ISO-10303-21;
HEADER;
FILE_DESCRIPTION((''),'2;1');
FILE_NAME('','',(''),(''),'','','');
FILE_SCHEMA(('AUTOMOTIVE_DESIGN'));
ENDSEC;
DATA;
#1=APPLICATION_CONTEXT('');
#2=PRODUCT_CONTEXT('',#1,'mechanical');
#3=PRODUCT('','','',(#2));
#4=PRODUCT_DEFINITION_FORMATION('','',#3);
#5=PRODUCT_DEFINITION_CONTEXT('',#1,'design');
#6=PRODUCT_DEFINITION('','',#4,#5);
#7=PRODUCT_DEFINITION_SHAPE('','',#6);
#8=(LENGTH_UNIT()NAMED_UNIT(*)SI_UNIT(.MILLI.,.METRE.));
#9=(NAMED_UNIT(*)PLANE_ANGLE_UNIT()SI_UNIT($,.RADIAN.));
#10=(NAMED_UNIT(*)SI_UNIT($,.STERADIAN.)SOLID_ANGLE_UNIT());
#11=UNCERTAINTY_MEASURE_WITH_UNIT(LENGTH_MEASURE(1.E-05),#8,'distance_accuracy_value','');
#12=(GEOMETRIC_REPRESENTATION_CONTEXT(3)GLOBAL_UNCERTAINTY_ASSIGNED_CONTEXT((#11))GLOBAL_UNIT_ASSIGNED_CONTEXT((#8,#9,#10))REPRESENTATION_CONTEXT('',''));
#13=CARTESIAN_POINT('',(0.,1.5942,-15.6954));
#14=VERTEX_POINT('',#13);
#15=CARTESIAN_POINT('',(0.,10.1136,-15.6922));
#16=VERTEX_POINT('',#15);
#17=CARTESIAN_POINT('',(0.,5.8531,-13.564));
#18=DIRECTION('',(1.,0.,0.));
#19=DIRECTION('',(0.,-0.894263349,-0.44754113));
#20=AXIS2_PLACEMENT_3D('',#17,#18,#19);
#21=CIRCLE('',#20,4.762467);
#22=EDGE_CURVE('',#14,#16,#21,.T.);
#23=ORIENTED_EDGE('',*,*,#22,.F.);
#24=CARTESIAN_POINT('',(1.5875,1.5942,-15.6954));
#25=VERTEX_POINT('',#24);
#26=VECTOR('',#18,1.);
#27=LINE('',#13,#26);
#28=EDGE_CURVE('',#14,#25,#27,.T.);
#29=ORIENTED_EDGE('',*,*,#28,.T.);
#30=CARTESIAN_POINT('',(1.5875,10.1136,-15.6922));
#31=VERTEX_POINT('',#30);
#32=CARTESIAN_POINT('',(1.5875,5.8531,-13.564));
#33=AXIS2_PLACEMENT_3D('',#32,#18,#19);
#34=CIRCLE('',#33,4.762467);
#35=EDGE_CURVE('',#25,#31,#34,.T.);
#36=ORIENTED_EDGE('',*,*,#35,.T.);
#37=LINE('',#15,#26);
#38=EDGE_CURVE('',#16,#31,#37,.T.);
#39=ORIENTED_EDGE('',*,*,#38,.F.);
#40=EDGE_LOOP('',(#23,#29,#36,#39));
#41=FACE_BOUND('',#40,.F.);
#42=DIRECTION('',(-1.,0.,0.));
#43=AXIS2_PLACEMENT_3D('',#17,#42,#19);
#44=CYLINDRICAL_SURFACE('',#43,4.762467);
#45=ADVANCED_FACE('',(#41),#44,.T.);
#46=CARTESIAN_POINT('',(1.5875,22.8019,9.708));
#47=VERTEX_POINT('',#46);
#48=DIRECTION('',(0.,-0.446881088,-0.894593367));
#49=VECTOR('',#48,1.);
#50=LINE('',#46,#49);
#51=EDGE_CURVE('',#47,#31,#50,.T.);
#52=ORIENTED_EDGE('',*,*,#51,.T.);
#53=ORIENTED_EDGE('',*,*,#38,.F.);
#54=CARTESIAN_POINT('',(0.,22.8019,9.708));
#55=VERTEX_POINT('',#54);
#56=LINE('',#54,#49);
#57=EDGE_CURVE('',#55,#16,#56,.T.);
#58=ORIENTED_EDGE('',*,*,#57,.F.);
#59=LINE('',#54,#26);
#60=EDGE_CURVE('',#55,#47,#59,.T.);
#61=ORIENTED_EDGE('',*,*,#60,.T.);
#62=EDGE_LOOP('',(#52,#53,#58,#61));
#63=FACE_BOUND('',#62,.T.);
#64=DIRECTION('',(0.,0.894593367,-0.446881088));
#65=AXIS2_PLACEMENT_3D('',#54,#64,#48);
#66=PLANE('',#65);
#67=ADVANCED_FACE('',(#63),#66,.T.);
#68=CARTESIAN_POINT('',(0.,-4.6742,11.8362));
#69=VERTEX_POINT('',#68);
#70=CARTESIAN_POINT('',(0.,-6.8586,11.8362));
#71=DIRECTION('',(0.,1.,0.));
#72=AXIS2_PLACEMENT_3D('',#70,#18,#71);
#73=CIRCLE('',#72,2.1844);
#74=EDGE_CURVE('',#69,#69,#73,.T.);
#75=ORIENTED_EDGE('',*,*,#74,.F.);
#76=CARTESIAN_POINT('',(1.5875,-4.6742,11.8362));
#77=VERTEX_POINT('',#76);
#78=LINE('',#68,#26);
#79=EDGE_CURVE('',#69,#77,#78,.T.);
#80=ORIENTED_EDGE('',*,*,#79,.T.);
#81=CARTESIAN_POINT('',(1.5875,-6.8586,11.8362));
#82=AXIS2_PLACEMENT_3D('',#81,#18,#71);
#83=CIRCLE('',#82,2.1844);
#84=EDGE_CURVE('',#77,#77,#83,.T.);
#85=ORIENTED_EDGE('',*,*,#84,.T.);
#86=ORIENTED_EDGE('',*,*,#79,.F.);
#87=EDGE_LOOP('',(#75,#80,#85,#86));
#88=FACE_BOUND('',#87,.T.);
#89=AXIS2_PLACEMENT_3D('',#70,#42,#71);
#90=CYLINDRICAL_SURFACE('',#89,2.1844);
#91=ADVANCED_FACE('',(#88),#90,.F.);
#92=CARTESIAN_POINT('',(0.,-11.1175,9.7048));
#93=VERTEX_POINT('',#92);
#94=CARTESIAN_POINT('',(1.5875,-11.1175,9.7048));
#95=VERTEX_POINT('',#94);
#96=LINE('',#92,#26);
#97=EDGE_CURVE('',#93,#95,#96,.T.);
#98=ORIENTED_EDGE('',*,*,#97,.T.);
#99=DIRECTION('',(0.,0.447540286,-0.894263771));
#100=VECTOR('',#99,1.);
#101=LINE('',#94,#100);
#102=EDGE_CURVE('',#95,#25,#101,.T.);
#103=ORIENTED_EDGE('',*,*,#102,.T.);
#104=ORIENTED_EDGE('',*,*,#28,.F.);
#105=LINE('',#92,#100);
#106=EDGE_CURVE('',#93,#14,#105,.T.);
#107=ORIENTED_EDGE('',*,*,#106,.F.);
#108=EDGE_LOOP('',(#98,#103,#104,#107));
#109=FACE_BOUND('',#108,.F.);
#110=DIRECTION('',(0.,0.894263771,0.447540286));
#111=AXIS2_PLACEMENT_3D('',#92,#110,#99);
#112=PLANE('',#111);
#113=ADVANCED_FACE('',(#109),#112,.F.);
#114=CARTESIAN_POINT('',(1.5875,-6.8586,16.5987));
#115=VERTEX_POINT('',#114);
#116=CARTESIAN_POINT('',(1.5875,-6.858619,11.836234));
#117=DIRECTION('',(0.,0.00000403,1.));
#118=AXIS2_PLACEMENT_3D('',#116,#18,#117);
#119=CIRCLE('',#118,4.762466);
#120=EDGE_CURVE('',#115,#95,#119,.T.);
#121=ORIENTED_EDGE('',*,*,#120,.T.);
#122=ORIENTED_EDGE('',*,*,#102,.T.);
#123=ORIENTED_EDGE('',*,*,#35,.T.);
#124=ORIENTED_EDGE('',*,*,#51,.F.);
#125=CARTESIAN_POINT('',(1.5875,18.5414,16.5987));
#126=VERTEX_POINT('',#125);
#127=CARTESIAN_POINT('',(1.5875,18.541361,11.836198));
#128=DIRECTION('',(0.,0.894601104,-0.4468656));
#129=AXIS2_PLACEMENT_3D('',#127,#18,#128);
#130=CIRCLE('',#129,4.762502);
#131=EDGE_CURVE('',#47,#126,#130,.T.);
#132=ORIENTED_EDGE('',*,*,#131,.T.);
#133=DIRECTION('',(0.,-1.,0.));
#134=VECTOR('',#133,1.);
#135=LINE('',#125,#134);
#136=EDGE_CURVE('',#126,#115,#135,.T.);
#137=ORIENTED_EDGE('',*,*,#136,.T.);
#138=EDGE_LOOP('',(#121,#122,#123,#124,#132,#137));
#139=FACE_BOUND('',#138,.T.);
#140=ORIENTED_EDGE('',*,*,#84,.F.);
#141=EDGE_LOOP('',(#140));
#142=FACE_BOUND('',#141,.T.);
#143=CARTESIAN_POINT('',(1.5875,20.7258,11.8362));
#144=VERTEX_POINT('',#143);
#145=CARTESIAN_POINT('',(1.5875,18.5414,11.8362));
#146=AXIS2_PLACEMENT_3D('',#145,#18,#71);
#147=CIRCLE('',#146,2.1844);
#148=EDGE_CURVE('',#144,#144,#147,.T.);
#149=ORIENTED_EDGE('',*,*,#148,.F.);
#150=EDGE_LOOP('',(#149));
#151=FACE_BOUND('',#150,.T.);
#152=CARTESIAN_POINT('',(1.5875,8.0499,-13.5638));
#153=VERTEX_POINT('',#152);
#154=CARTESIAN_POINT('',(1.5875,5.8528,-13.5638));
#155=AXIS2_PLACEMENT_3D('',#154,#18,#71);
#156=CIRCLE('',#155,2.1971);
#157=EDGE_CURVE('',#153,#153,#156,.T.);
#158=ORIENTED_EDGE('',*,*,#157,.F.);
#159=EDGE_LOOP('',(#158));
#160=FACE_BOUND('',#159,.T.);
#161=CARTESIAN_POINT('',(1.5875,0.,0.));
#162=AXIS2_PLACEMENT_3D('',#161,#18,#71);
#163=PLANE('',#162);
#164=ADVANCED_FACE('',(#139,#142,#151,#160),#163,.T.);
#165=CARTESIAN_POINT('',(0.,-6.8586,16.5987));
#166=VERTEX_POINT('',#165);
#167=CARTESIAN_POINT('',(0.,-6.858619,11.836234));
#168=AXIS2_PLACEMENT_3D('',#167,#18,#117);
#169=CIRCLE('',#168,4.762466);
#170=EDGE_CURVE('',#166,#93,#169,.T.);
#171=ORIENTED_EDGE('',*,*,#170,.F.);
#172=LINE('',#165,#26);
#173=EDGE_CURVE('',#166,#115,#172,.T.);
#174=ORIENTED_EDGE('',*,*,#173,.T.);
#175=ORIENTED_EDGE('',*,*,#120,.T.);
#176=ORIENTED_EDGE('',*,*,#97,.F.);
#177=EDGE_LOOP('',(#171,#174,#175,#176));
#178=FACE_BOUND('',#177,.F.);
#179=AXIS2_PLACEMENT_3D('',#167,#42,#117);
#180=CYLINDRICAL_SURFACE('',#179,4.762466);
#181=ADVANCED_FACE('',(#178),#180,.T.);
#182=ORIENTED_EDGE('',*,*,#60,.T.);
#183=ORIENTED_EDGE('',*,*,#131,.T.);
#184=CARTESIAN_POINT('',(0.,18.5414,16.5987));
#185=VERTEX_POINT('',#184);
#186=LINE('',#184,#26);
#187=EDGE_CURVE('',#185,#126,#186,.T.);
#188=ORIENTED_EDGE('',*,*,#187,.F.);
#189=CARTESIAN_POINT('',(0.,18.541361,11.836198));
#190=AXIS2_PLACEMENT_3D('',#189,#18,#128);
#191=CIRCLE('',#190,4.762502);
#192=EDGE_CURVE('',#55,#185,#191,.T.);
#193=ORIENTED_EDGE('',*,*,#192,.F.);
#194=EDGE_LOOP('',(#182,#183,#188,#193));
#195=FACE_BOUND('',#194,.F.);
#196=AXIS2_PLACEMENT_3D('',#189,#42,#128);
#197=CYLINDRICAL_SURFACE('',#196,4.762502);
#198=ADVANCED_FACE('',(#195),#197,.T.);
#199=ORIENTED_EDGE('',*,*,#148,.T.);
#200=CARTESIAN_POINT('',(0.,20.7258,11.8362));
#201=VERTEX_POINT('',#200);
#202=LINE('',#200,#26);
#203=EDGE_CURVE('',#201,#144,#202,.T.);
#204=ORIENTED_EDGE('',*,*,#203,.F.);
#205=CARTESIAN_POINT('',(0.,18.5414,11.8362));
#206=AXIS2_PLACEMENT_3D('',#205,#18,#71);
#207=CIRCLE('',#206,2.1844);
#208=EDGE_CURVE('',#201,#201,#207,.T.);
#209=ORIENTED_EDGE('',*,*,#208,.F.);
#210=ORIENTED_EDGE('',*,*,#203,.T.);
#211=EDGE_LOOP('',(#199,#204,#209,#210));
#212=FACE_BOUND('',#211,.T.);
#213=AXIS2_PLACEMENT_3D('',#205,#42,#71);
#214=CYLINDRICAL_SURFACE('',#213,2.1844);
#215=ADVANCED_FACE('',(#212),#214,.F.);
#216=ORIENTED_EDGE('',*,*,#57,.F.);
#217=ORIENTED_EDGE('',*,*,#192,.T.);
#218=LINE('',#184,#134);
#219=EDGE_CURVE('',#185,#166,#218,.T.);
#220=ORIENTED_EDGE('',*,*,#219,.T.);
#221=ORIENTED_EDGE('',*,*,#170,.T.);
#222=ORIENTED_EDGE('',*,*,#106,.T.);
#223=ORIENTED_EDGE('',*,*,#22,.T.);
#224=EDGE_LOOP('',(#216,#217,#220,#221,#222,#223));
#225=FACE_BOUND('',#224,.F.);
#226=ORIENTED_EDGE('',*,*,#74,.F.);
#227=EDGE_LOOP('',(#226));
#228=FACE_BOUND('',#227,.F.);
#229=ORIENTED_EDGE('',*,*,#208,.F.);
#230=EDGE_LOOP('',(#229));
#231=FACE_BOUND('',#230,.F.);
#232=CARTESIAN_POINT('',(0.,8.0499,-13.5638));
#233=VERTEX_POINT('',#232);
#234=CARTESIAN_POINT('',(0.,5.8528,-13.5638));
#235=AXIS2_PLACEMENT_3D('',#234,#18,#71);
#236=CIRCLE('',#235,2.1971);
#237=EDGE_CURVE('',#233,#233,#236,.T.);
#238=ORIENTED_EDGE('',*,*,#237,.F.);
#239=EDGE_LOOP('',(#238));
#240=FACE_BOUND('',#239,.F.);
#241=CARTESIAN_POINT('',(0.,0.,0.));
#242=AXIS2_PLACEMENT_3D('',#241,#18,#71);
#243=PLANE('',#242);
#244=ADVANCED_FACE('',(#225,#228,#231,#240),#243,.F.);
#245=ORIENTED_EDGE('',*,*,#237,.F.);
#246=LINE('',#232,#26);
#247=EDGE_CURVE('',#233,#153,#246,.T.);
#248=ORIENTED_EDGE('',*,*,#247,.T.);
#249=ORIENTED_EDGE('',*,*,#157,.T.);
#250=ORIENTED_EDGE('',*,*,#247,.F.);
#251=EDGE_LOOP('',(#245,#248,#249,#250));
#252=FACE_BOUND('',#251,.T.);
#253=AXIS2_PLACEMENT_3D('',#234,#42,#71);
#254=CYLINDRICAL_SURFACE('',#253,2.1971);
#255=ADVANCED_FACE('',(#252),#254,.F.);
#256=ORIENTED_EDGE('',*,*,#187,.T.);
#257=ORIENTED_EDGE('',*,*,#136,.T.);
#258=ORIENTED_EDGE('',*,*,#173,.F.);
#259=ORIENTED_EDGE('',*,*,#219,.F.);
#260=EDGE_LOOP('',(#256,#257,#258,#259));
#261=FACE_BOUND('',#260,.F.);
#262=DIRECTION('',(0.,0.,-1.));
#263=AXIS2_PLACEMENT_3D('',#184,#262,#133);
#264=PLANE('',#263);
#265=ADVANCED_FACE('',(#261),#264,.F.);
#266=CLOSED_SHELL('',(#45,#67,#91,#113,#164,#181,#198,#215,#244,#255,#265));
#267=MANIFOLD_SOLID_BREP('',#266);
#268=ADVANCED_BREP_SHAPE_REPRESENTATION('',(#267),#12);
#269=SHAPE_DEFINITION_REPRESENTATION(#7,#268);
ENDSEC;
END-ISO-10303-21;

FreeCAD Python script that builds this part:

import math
import FreeCAD as App
import Part
import Sketcher

V = App.Vector
Q = App.Units.Quantity

doc = App.newDocument("Part")
body = doc.addObject("PartDesign::Body", "Body")

# Sketch on YZ plane
sketch1 = body.newObject("Sketcher::SketchObject", "Sketch")
sketch1.AttachmentSupport = (doc.getObject("YZ_Plane"), [""])
sketch1.MapMode = "FlatFace"
sketch1.addGeometry([
    Part.LineSegment(V(10.1, -15.7, 0), V(22.8, 9.7, 0)),  # 0
    Part.ArcOfCircle(Part.Circle(V(18.5, 11.8, 0), V(0, 0, 1), 4.8), math.radians(-27), math.radians(90)),  # 1
    Part.LineSegment(V(18.5, 16.6, 0), V(-6.9, 16.6, 0)),  # 2
    Part.ArcOfCircle(Part.Circle(V(-6.9, 11.8, 0), V(0, 0, 1), 4.8), math.radians(90), math.radians(207)),  # 3
    Part.LineSegment(V(-11.1, 9.7, 0), V(1.6, -15.7, 0)),  # 4
    Part.ArcOfCircle(Part.Circle(V(5.9, -13.6, 0), V(0, 0, 1), 4.8), math.radians(-153), math.radians(-27)),  # 5
    Part.Circle(V(5.9, -13.6, 0), V(0, 0, 1), 2.2),  # 6
    Part.Circle(V(-6.9, 11.8, 0), V(0, 0, 1), 2.2),  # 7
    Part.Circle(V(18.5, 11.8, 0), V(0, 0, 1), 2.2),  # 8
], False)
sketch1.addConstraint([
    Sketcher.Constraint("Tangent", 0, 2, 1, 1),
    Sketcher.Constraint("Tangent", 1, 2, 2, 1),
    Sketcher.Constraint("Tangent", 2, 2, 3, 1),
    Sketcher.Constraint("Tangent", 3, 2, 4, 1),
    Sketcher.Constraint("Tangent", 4, 2, 5, 1),
    Sketcher.Constraint("Tangent", 5, 2, 0, 1),
    Sketcher.Constraint("Horizontal", 2),
    Sketcher.Constraint("Coincident", 6, 3, 5, 3),
    Sketcher.Constraint("Coincident", 7, 3, 3, 3),
    Sketcher.Constraint("Coincident", 8, 3, 1, 3),
    Sketcher.Constraint("Equal", 1, 3),
    Sketcher.Constraint("Equal", 3, 5),
    Sketcher.Constraint("Equal", 7, 8),
    Sketcher.Constraint("Radius", 1, Q("0.1875 in")),
    Sketcher.Constraint("DistanceX", 2, 2, 2, 1, Q("1 in")),
    Sketcher.Constraint("Diameter", 6, Q("0.173 in")),
    Sketcher.Constraint("Diameter", 7, Q("0.172 in")),
    Sketcher.Constraint("DistanceY", 5, 3, 1, 3, Q("1 in")),
    Sketcher.Constraint("DistanceY", -1, 1, 1, 3, Q("0.466 in")),
    Sketcher.Constraint("DistanceY", -1, 1, 0, 2, Q("0.3822 in")),
    Sketcher.Constraint("DistanceX", 3, 2, -1, 1, Q("0.4377 in")),
])
pad1 = body.newObject("PartDesign::Pad", "Pad")
pad1.Profile = sketch1
pad1.Length = Q("0.0625 in")

doc.recompute()
